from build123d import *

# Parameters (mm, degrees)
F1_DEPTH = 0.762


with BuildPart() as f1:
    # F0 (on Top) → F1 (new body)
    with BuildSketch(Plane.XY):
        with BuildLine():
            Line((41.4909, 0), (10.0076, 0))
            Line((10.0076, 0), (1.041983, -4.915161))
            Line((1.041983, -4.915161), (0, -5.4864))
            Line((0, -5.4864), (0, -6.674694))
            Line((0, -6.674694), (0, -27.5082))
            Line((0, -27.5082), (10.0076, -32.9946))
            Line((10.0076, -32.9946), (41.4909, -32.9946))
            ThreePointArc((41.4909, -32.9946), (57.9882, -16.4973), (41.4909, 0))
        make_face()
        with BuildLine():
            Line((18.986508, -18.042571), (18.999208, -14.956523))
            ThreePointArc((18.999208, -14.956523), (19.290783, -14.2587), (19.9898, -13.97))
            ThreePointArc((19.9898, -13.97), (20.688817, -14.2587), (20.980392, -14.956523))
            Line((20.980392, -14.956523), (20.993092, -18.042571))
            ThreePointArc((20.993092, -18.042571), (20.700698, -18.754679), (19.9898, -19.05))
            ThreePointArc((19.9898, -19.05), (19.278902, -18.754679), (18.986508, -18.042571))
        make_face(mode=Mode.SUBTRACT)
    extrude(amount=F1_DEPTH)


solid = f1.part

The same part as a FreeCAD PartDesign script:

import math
import FreeCAD as App
import Part
import Sketcher
from FreeCAD import Vector
Q = App.Units.Quantity

doc = App.newDocument("Part")
params = doc.addObject("Spreadsheet::Sheet", "Params")
for row, (alias, value) in enumerate([
    ("sketch1_radius", "0.039 in"),
    ("sketch1_height", "0.867 in"),
    ("pad1_length", "0.03 in"),
], start=1):
    params.set(f"A{row}", alias)
    params.set(f"B{row}", "=" + value)
    params.setAlias(f"B{row}", alias)

body = doc.addObject("PartDesign::Body", "Body")

# Sketch on XY plane
sketch1 = body.newObject("Sketcher::SketchObject", "Sketch")
sketch1.AttachmentSupport = (doc.getObject("XY_Plane"), [""])
sketch1.MapMode = "FlatFace"
sketch1.addGeometry(Part.LineSegment(Vector(41.5, 0, 0), Vector(10, 0, 0)), False)
sketch1.addGeometry(Part.LineSegment(Vector(10, 0, 0), Vector(1, -4.9, 0)), False)
sketch1.addGeometry(Part.LineSegment(Vector(1, -4.9, 0), Vector(0, -5.5, 0)), False)
sketch1.addGeometry(Part.LineSegment(Vector(0, -5.5, 0), Vector(0, -27.5, 0)), False)
sketch1.addGeometry(Part.LineSegment(Vector(0, -27.5, 0), Vector(10, -33, 0)), False)
sketch1.addGeometry(Part.LineSegment(Vector(10, -33, 0), Vector(41.5, -33, 0)), False)
sketch1.addGeometry(Part.ArcOfCircle(Part.Circle(Vector(41.5, -16.5, 0), Vector(0, 0, 1), 16.5), math.radians(-90), math.radians(90)), False)
sketch1.addGeometry(Part.ArcOfCircle(Part.Circle(Vector(20, -18, 0), Vector(0, 0, 1), 1), math.radians(180), math.radians(270)), False)
sketch1.addGeometry(Part.LineSegment(Vector(19, -18, 0), Vector(19, -15, 0)), False)
sketch1.addGeometry(Part.ArcOfCircle(Part.Circle(Vector(20, -15, 0), Vector(0, 0, 1), 1), math.radians(90), math.radians(180)), False)
sketch1.addGeometry(Part.ArcOfCircle(Part.Circle(Vector(20, -15, 0), Vector(0, 0, 1), 1), math.radians(0), math.radians(90)), False)
sketch1.addGeometry(Part.LineSegment(Vector(21, -15, 0), Vector(21, -18, 0)), False)
sketch1.addGeometry(Part.ArcOfCircle(Part.Circle(Vector(20, -18, 0), Vector(0, 0, 1), 1), math.radians(-90), math.radians(0)), False)
sketch1.addConstraint(Sketcher.Constraint("Coincident", 0, 2, 1, 1))
sketch1.addConstraint(Sketcher.Constraint("Coincident", 1, 2, 2, 1))
sketch1.addConstraint(Sketcher.Constraint("Coincident", 2, 2, 3, 1))
sketch1.addConstraint(Sketcher.Constraint("Coincident", 3, 2, 4, 1))
sketch1.addConstraint(Sketcher.Constraint("Coincident", 4, 2, 5, 1))
sketch1.addConstraint(Sketcher.Constraint("Tangent", 5, 2, 6, 1))
sketch1.addConstraint(Sketcher.Constraint("Tangent", 6, 2, 0, 1))
sketch1.addConstraint(Sketcher.Constraint("Tangent", 7, 1, 8, 1))
sketch1.addConstraint(Sketcher.Constraint("Tangent", 8, 2, 9, 2))
sketch1.addConstraint(Sketcher.Constraint("Tangent", 9, 1, 10, 2))
sketch1.addConstraint(Sketcher.Constraint("Tangent", 10, 1, 11, 1))
sketch1.addConstraint(Sketcher.Constraint("Tangent", 11, 2, 12, 2))
sketch1.addConstraint(Sketcher.Constraint("Coincident", 12, 1, 7, 2))
sketch1.addConstraint(Sketcher.Constraint("Horizontal", 0))
sketch1.addConstraint(Sketcher.Constraint("Vertical", 3))
sketch1.addConstraint(Sketcher.Constraint("Horizontal", 5))
sketch1.addConstraint(Sketcher.Constraint("Coincident", 12, 3, 7, 3))
sketch1.addConstraint(Sketcher.Constraint("Equal", 9, 10))
sketch1.addConstraint(Sketcher.Constraint("PointOnObject", 0, 2, -1))
sketch1.addConstraint(Sketcher.Constraint("PointOnObject", 2, 2, -2))
sketch1.addConstraint(Sketcher.Constraint("Parallel", 1, 2))
sketch1.addConstraint(Sketcher.Constraint("Horizontal", 8, 2, 10, 1))
sketch1.addConstraint(Sketcher.Constraint("Vertical", 0, 2, 4, 2))
sketch1.addConstraint(Sketcher.Constraint("Vertical", 12, 3, 9, 1))
sketch1.addConstraint(Sketcher.Constraint("Vertical", 9, 1, 12, 1))
sketch1.addConstraint(Sketcher.Constraint("Radius", 9, Q("0.039 in")))
sketch1.addConstraint(Sketcher.Constraint("Radius", 6, Q("0.6495 in")))
sketch1.addConstraint(Sketcher.Constraint("Radius", 7, Q("0.0395001 in")))
sketch1.addConstraint(Sketcher.Constraint("DistanceY", 3, 2, 3, 1, Q("0.867 in")))
sketch1.addConstraint(Sketcher.Constraint("DistanceY", 9, 1, -1, 1, Q("0.55 in")))
sketch1.addConstraint(Sketcher.Constraint("DistanceY", 12, 1, -1, 1, Q("0.75 in")))
sketch1.addConstraint(Sketcher.Constraint("DistanceX", 0, 2, 0, 1, Q("1.2395 in")))
sketch1.addConstraint(Sketcher.Constraint("DistanceX", -1, 1, 7, 3, Q("0.787 in")))
sketch1.addConstraint(Sketcher.Constraint("DistanceX", -1, 1, 0, 2, Q("0.394 in")))
sketch1.addConstraint(Sketcher.Constraint("DistanceY", 2, 2, -1, 1, Q("0.216 in")))
sketch1.addConstraint(Sketcher.Constraint("DistanceY", 1, 2, -1, 1, Q("4.915161 mm")))
sketch1.setExpression("Constraints[25]", "Params.sketch1_radius")
sketch1.setExpression("Constraints[28]", "Params.sketch1_height")
pad1 = body.newObject("PartDesign::Pad", "Pad")
pad1.Profile = sketch1
pad1.setExpression("Length", "Params.pad1_length")

doc.recompute()
